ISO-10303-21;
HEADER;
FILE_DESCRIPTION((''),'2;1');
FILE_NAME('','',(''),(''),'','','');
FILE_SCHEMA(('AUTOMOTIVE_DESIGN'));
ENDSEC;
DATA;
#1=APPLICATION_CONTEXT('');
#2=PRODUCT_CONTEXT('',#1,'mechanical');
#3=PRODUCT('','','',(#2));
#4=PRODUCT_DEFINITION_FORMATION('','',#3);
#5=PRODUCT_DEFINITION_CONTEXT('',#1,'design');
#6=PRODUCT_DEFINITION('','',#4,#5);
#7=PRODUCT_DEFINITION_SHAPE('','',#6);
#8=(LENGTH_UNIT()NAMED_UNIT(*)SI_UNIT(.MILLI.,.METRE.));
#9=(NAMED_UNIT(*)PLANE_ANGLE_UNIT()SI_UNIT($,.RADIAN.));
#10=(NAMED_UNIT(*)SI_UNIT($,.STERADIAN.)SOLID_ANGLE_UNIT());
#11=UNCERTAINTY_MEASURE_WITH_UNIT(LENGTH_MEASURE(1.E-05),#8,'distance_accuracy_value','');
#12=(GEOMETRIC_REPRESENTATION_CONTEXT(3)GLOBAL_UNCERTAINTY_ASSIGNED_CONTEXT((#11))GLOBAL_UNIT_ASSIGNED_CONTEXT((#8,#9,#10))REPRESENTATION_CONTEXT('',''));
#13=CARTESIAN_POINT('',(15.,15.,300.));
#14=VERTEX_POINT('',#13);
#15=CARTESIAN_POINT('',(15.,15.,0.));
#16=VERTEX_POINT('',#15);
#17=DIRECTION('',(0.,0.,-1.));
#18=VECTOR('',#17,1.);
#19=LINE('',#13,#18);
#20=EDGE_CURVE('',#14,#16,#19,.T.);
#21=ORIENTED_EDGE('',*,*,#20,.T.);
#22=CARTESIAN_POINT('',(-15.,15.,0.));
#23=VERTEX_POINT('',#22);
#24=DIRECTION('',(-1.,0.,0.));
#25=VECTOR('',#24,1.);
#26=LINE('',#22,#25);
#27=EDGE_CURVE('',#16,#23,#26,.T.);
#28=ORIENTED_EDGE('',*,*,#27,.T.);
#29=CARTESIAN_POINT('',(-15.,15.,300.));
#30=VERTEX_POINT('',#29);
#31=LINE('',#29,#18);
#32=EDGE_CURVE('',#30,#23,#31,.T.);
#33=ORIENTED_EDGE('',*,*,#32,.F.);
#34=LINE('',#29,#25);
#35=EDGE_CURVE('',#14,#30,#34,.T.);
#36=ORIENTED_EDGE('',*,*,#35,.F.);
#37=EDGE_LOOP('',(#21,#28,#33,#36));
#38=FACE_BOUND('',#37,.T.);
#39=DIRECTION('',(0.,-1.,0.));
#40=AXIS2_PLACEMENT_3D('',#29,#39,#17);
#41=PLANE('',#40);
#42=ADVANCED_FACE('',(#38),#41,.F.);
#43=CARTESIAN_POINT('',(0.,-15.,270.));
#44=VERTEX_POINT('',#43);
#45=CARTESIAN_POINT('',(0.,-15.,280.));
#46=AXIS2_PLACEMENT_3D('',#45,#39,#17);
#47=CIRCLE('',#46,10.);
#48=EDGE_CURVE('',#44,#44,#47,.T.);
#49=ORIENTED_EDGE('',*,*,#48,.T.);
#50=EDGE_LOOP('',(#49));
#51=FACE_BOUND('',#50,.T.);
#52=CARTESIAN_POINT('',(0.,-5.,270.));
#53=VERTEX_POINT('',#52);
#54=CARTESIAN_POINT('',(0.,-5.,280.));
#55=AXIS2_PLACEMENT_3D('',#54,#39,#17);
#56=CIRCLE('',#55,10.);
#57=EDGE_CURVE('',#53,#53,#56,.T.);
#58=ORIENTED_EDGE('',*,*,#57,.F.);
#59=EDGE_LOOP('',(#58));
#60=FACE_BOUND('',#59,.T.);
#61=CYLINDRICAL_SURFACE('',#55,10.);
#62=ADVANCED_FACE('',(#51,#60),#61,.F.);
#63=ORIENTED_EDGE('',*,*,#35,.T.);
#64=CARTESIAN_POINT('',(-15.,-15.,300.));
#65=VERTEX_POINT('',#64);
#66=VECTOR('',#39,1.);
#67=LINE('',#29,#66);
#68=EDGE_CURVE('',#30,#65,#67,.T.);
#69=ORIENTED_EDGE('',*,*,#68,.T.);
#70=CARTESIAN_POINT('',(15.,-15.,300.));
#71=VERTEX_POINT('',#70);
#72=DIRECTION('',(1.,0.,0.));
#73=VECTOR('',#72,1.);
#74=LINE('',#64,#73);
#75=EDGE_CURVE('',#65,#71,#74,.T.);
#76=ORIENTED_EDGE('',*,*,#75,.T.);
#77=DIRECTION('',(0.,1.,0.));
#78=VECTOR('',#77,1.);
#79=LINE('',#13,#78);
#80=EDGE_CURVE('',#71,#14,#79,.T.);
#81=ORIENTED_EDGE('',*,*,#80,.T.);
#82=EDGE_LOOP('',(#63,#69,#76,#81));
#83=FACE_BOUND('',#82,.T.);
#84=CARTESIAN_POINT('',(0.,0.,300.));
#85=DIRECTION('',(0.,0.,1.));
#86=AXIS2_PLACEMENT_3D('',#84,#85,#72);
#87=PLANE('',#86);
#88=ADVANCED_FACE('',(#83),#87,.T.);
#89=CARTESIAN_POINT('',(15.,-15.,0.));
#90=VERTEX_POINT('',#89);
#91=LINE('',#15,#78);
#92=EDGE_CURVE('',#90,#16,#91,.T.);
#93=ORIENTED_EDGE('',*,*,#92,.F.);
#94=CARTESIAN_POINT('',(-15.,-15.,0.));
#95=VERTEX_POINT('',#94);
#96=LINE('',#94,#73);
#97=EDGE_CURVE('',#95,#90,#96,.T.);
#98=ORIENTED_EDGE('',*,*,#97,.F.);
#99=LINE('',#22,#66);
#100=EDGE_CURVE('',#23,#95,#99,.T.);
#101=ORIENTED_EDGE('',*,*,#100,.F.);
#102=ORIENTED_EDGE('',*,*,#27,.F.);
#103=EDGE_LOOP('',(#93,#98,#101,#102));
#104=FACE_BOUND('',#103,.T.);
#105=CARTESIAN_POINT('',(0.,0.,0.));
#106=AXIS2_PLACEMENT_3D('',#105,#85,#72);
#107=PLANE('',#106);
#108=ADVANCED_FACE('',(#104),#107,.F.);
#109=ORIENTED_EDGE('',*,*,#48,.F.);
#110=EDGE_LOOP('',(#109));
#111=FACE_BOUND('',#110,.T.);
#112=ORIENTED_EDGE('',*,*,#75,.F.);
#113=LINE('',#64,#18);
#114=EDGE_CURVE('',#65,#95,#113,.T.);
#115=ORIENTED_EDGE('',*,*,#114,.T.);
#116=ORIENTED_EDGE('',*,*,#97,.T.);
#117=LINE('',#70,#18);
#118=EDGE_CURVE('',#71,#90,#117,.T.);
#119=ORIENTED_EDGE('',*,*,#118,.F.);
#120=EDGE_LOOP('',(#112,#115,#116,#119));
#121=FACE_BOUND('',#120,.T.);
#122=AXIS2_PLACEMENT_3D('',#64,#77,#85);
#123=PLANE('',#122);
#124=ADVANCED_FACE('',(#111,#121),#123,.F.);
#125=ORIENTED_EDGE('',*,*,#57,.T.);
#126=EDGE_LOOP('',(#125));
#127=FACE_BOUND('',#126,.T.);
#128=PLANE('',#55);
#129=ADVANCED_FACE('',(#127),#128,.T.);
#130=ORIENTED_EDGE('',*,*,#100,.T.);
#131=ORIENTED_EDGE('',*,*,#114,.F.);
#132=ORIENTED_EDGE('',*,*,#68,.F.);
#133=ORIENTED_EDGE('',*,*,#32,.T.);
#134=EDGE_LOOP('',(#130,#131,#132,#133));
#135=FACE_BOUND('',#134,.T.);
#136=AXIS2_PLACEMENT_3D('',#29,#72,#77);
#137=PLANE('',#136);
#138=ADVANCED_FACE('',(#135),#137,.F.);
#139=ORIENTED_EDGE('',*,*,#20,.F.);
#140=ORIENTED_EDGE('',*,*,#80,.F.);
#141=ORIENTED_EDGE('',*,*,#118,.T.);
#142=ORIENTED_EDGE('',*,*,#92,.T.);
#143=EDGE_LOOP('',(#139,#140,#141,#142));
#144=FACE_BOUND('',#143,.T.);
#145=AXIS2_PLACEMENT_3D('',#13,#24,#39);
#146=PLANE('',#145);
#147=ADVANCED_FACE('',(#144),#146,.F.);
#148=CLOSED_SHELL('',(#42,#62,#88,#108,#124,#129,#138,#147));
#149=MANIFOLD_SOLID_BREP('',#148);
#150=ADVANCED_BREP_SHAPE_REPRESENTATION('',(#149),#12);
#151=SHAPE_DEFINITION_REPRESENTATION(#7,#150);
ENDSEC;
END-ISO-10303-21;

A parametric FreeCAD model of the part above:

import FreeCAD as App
import Part
import Sketcher

V = App.Vector

doc = App.newDocument("Part")
params = doc.addObject("Spreadsheet::Sheet", "Params")
for row, (alias, value) in enumerate([
    ("sketch1_width", "30 mm"),
    ("pad1_length", "300 mm"),
    ("sketch2_diameter", "20 mm"),
    ("pocket1_length", "10 mm"),
], start=1):
    params.set(f"A{row}", alias)
    params.set(f"B{row}", "=" + value)
    params.setAlias(f"B{row}", alias)

body = doc.addObject("PartDesign::Body", "Body")

sketch1 = doc.addObject("Sketcher::SketchObject", "Sketch")
body.addObject(sketch1)
sketch1.AttachmentSupport = (doc.XY_Plane, [""])
sketch1.MapMode = "FlatFace"
sketch1.addGeometry([
    Part.LineSegment(V(-15, 15, 0), V(-15, -15, 0)),
    Part.LineSegment(V(-15, -15, 0), V(15, -15, 0)),
    Part.LineSegment(V(15, -15, 0), V(15, 15, 0)),
    Part.LineSegment(V(15, 15, 0), V(-15, 15, 0)),
], False)
sketch1.addConstraint([
    Sketcher.Constraint("Coincident", 0, 2, 1, 1),
    Sketcher.Constraint("Coincident", 1, 2, 2, 1),
    Sketcher.Constraint("Coincident", 2, 2, 3, 1),
    Sketcher.Constraint("Coincident", 3, 2, 0, 1),
    Sketcher.Constraint("Vertical", 0),
    Sketcher.Constraint("Horizontal", 1),
    Sketcher.Constraint("Vertical", 2),
    Sketcher.Constraint("Horizontal", 3),
    Sketcher.Constraint("Symmetric", 0, 2, 2, 2, -1, 1),
    Sketcher.Constraint("Equal", 3, 0),
    Sketcher.Constraint("DistanceX", 1, 1, 1, 2, 30.0),
])
sketch1.setExpression("Constraints[10]", "Params.sketch1_width")
pad1 = doc.addObject("PartDesign::Pad", "Pad")
body.addObject(pad1)
pad1.Profile = sketch1
pad1.setExpression("Length", "Params.pad1_length")

sketch2 = doc.addObject("Sketcher::SketchObject", "Sketch001")
body.addObject(sketch2)
sketch2.AttachmentSupport = (doc.XZ_Plane, [""])
sketch2.MapMode = "FlatFace"
sketch2.AttachmentOffset = App.Placement(V(0, 0, 15), App.Rotation())
sketch2.addGeometry(Part.Circle(V(0, 280, 0), V(0, 0, 1), 10), False)
sketch2.addConstraint([
    Sketcher.Constraint("PointOnObject", 0, 3, -2),
    Sketcher.Constraint("Diameter", 0, 20.0),
    Sketcher.Constraint("DistanceY", -1, 1, 0, 3, 280.0),
])
sketch2.setExpression("Constraints[1]", "Params.sketch2_diameter")
pocket1 = doc.addObject("PartDesign::Pocket", "Pocket")
body.addObject(pocket1)
pocket1.Profile = sketch2
pocket1.setExpression("Length", "Params.pocket1_length")

doc.recompute()
